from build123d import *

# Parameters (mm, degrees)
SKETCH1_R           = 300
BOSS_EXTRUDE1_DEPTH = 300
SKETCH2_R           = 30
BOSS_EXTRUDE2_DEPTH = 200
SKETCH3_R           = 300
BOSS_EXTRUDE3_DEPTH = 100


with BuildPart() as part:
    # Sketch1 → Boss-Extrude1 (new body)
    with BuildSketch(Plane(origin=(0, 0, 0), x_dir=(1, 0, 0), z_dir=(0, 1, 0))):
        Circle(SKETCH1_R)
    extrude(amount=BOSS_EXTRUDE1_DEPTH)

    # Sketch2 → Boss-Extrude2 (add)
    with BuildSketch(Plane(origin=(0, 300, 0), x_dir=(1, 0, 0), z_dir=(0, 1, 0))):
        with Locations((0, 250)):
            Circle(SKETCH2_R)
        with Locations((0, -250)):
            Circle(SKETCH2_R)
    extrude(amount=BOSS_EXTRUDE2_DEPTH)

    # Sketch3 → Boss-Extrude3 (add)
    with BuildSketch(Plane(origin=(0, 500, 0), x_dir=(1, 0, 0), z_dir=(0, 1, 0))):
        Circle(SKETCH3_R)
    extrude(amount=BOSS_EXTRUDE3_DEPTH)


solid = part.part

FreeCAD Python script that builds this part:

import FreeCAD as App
import Part
import Sketcher
from FreeCAD import Vector

doc = App.newDocument("Part")
body = doc.addObject("PartDesign::Body", "Body")

# Sketch on XZ plane
sketch1 = body.newObject("Sketcher::SketchObject", "Sketch")
sketch1.AttachmentSupport = (doc.getObject("XZ_Plane"), [""])
sketch1.MapMode = "FlatFace"
sketch1.addGeometry(Part.Circle(Vector(0, 0, 0), Vector(0, 0, 1), 300), False)
sketch1.addConstraint(Sketcher.Constraint("Coincident", 0, 3, -1, 1))
sketch1.addConstraint(Sketcher.Constraint("Diameter", 0, 600.0))
pad1 = body.newObject("PartDesign::Pad", "Pad")
pad1.Profile = sketch1
pad1.Length = 300
pad1.Reversed = True

# Sketch on XZ plane
sketch2 = body.newObject("Sketcher::SketchObject", "Sketch001")
sketch2.AttachmentSupport = (doc.getObject("XZ_Plane"), [""])
sketch2.MapMode = "FlatFace"
sketch2.AttachmentOffset = App.Placement(Vector(0, 0, -300), App.Rotation())
sketch2.addGeometry(Part.Circle(Vector(0, -250, 0), Vector(0, 0, 1), 30), False)
sketch2.addGeometry(Part.Circle(Vector(0, 250, 0), Vector(0, 0, 1), 30), False)
sketch2.addConstraint(Sketcher.Constraint("Equal", 0, 1))
sketch2.addConstraint(Sketcher.Constraint("Symmetric", 0, 3, 1, 3, -1, 1))
sketch2.addConstraint(Sketcher.Constraint("PointOnObject", 0, 3, -2))
sketch2.addConstraint(Sketcher.Constraint("Diameter", 0, 60.0))
sketch2.addConstraint(Sketcher.Constraint("DistanceY", 0, 3, -1, 1, 250.0))
pad2 = body.newObject("PartDesign::Pad", "Pad001")
pad2.Profile = sketch2
pad2.Length = 200
pad2.Reversed = True

# Sketch on XZ plane
sketch3 = body.newObject("Sketcher::SketchObject", "Sketch002")
sketch3.AttachmentSupport = (doc.getObject("XZ_Plane"), [""])
sketch3.MapMode = "FlatFace"
sketch3.AttachmentOffset = App.Placement(Vector(0, 0, -500), App.Rotation())
sketch3.addGeometry(Part.Circle(Vector(0, 0, 0), Vector(0, 0, 1), 300), False)
sketch3.addConstraint(Sketcher.Constraint("Coincident", 0, 3, -1, 1))
sketch3.addConstraint(Sketcher.Constraint("Diameter", 0, 600.0))
pad3 = body.newObject("PartDesign::Pad", "Pad002")
pad3.Profile = sketch3
pad3.Length = 100
pad3.Reversed = True

doc.recompute()
